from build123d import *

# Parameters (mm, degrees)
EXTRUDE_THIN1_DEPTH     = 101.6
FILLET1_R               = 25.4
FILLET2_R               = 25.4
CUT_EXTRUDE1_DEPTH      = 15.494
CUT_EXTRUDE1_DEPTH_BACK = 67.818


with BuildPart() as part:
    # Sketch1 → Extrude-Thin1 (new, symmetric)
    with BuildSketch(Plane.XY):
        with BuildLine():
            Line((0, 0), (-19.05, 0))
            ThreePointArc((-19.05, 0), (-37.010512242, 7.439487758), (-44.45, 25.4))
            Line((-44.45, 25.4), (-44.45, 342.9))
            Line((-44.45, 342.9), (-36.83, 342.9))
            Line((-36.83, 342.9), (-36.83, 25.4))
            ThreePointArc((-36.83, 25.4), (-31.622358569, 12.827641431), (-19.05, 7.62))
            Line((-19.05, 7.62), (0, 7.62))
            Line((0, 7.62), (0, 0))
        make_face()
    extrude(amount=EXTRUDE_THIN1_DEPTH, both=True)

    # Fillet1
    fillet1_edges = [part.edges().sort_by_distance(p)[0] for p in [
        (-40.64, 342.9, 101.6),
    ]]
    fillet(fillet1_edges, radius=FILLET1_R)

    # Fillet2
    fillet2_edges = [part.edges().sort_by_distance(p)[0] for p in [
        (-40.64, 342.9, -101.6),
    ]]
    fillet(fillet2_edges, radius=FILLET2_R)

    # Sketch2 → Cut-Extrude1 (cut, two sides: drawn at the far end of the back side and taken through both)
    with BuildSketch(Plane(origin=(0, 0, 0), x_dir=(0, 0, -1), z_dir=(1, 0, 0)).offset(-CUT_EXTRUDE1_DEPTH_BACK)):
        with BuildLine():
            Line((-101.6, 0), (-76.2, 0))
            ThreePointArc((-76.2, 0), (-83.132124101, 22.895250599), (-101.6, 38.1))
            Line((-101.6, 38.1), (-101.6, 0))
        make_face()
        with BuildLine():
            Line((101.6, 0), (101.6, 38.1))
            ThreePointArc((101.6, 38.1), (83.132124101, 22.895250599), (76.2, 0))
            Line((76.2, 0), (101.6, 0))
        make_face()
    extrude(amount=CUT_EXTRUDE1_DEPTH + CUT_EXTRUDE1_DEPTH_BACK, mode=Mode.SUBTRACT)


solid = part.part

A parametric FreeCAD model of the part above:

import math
import FreeCAD as App
import Part
import Sketcher
from FreeCAD import Vector
Q = App.Units.Quantity


def edges_at(feature, points):
    """Names of the edges that pass closest to the given points."""
    edges = feature.Shape.Edges
    near = lambda p: min(range(len(edges)), key=lambda i: edges[i].distToShape(Part.Vertex(*p))[0])
    return sorted({f"Edge{near(p) + 1}" for p in points})

doc = App.newDocument("Part")
params = doc.addObject("Spreadsheet::Sheet", "Params")
for row, (alias, value) in enumerate([
    ("sketch1_radius", "1 in"),
    ("sketch1_radius2", "0.7 in"),
    ("sketch1_height", "12.5 in"),
    ("sketch1_width", "0.75 in"),
    ("pad1_length", "8 in"),
    ("fillet_radius", "1 in"),
    ("fillet2_radius", "1 in"),
    ("sketch2_height", "1 in"),
    ("sketch2_width", "1.5 in"),
], start=1):
    params.set(f"A{row}", alias)
    params.set(f"B{row}", "=" + value)
    params.setAlias(f"B{row}", alias)

body = doc.addObject("PartDesign::Body", "Body")

# Sketch on XY plane
sketch1 = doc.addObject("Sketcher::SketchObject", "Sketch")
body.addObject(sketch1)
sketch1.AttachmentSupport = (doc.XY_Plane, [""])
sketch1.MapMode = "FlatFace"
sketch1.addGeometry([
    Part.LineSegment(Vector(-19, 0, 0), Vector(0, 0, 0)),  # 0
    Part.LineSegment(Vector(0, 0, 0), Vector(0, 8, 0)),  # 1
    Part.LineSegment(Vector(0, 8, 0), Vector(-19, 8, 0)),  # 2
    Part.ArcOfCircle(Part.Circle(Vector(-19, 25, 0), Vector(0, 0, 1), 18), math.radians(-180), math.radians(-90)),  # 3
    Part.LineSegment(Vector(-37, 25, 0), Vector(-37, 343, 0)),  # 4
    Part.LineSegment(Vector(-37, 343, 0), Vector(-44, 343, 0)),  # 5
    Part.LineSegment(Vector(-44, 343, 0), Vector(-44, 25, 0)),  # 6
    Part.ArcOfCircle(Part.Circle(Vector(-19, 25, 0), Vector(0, 0, 1), 25), math.radians(180), math.radians(270)),  # 7
], False)
sketch1.addConstraint([
    Sketcher.Constraint("Coincident", 0, 2, 1, 1),
    Sketcher.Constraint("Coincident", 1, 2, 2, 1),
    Sketcher.Constraint("Tangent", 2, 2, 3, 2),
    Sketcher.Constraint("Tangent", 3, 1, 4, 1),
    Sketcher.Constraint("Coincident", 4, 2, 5, 1),
    Sketcher.Constraint("Coincident", 5, 2, 6, 1),
    Sketcher.Constraint("Tangent", 6, 2, 7, 1),
    Sketcher.Constraint("Tangent", 7, 2, 0, 1),
    Sketcher.Constraint("Horizontal", 0),
    Sketcher.Constraint("Vertical", 1),
    Sketcher.Constraint("Horizontal", 2),
    Sketcher.Constraint("Vertical", 4),
    Sketcher.Constraint("Horizontal", 5),
    Sketcher.Constraint("Vertical", 6),
    Sketcher.Constraint("Coincident", 0, 2, -1, 1),
    Sketcher.Constraint("Coincident", 7, 3, 3, 3),
    Sketcher.Constraint("Radius", 7, Q("1 in")),
    Sketcher.Constraint("Radius", 3, Q("0.7 in")),
    Sketcher.Constraint("DistanceY", 4, 1, 4, 2, Q("12.5 in")),
    Sketcher.Constraint("DistanceX", 0, 1, 0, 2, Q("0.75 in")),
])
sketch1.setExpression("Constraints[16]", "Params.sketch1_radius")
sketch1.setExpression("Constraints[17]", "Params.sketch1_radius2")
sketch1.setExpression("Constraints[18]", "Params.sketch1_height")
sketch1.setExpression("Constraints[19]", "Params.sketch1_width")
pad1 = doc.addObject("PartDesign::Pad", "Pad")
body.addObject(pad1)
pad1.Profile = sketch1
pad1.setExpression("Length", "Params.pad1_length")
pad1.Midplane = True
doc.recompute()

fillet = doc.addObject("PartDesign::Fillet", "Fillet")
body.addObject(fillet)
fillet.Base = (pad1, edges_at(pad1, [(-40.64, 342.9, 101.6)]))
fillet.setExpression("Radius", "Params.fillet_radius")
doc.recompute()

fillet2 = doc.addObject("PartDesign::Fillet", "Fillet001")
body.addObject(fillet2)
fillet2.Base = (fillet, edges_at(fillet, [(-40.64, 342.9, -101.6)]))
fillet2.setExpression("Radius", "Params.fillet2_radius")

# Sketch on YZ plane
sketch2 = doc.addObject("Sketcher::SketchObject", "Sketch001")
body.addObject(sketch2)
sketch2.AttachmentSupport = (doc.YZ_Plane, [""])
sketch2.MapMode = "FlatFace"
sketch2.addGeometry([
    Part.LineSegment(Vector(0, 102, 0), Vector(0, 76, 0)),  # 0
    Part.ArcOfCircle(Part.Circle(Vector(0, 117, 0), Vector(0, 0, 1), 41), math.radians(-90), math.radians(-23)),  # 1
    Part.LineSegment(Vector(38, 102, 0), Vector(0, 102, 0)),  # 2
    Part.LineSegment(Vector(0, -102, 0), Vector(38, -102, 0)),  # 3
    Part.ArcOfCircle(Part.Circle(Vector(0, -117, 0), Vector(0, 0, 1), 41), math.radians(23), math.radians(90)),  # 4
    Part.LineSegment(Vector(0, -76, 0), Vector(0, -102, 0)),  # 5
], False)
sketch2.addConstraint([
    Sketcher.Constraint("Coincident", 0, 2, 1, 1),
    Sketcher.Constraint("Coincident", 1, 2, 2, 1),
    Sketcher.Constraint("Coincident", 2, 2, 0, 1),
    Sketcher.Constraint("Coincident", 3, 2, 4, 1),
    Sketcher.Constraint("Coincident", 4, 2, 5, 1),
    Sketcher.Constraint("Coincident", 5, 2, 3, 1),
    Sketcher.Constraint("Vertical", 0),
    Sketcher.Constraint("Horizontal", 2),
    Sketcher.Constraint("Horizontal", 3),
    Sketcher.Constraint("Vertical", 5),
    Sketcher.Constraint("Equal", 1, 4),
    Sketcher.Constraint("Symmetric", 1, 3, 4, 3, -1, 1),
    Sketcher.Constraint("Symmetric", 2, 2, 5, 2, -1, 1),
    Sketcher.Constraint("PointOnObject", 1, 3, -2),
    Sketcher.Constraint("PointOnObject", 0, 2, -2),
    Sketcher.Constraint("DistanceY", 0, 2, 0, 1, Q("1 in")),
    Sketcher.Constraint("DistanceX", 2, 2, 2, 1, Q("1.5 in")),
    Sketcher.Constraint("DistanceY", -1, 1, 0, 2, Q("3 in")),
])
sketch2.setExpression("Constraints[15]", "Params.sketch2_height")
sketch2.setExpression("Constraints[16]", "Params.sketch2_width")
pocket1 = doc.addObject("PartDesign::Pocket", "Pocket")
body.addObject(pocket1)
pocket1.Profile = sketch2
pocket1.Type = "ThroughAll"
pocket1.Midplane = True

doc.recompute()
